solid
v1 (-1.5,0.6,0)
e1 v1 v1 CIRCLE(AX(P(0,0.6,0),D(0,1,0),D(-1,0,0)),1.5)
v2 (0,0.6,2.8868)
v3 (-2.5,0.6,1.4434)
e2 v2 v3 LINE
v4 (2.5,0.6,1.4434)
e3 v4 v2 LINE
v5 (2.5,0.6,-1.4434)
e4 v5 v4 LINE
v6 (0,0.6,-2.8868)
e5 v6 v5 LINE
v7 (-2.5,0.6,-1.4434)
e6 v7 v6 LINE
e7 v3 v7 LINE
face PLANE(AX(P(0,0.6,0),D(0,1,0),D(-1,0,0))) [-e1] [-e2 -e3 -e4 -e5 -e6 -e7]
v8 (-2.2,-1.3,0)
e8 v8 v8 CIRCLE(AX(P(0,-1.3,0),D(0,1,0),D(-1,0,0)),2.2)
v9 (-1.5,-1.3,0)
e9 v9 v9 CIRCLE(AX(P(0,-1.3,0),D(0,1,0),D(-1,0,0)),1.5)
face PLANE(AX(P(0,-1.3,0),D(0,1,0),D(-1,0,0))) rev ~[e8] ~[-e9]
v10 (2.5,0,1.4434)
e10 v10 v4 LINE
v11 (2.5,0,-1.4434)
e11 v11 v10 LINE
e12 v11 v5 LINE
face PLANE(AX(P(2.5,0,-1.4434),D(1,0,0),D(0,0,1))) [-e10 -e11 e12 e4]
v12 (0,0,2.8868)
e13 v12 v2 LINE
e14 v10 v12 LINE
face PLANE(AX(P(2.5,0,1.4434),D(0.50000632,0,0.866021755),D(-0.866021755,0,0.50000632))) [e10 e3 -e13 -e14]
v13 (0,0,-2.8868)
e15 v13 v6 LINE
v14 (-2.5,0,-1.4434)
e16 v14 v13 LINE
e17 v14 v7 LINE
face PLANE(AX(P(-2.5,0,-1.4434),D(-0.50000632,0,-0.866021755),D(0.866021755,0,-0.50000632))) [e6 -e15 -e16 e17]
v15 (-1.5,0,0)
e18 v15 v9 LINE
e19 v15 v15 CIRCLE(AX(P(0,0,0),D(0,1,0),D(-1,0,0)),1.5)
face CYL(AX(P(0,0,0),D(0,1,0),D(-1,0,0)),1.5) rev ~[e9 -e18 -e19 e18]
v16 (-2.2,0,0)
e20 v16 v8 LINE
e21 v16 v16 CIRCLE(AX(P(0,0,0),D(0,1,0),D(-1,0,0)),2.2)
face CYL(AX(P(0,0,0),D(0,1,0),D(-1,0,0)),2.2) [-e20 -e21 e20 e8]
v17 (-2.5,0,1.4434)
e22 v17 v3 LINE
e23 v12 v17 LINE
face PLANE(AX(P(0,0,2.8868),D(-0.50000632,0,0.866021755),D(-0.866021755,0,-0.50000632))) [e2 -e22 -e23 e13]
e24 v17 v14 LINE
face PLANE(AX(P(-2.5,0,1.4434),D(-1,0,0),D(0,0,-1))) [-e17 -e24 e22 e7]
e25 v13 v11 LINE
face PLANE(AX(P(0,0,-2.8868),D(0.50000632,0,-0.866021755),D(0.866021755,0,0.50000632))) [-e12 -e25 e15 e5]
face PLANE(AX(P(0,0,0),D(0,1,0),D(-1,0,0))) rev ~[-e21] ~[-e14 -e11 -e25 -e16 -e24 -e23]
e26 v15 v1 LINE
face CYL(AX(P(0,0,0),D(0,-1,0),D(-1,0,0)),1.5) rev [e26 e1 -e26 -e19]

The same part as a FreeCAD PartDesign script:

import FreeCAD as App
import Part
import Sketcher
Q = App.Units.Quantity


def add_polygon(sketch, points):
    """Adds a closed chain of lines whose ends are joined by coincident constraints."""
    first, n = sketch.GeometryCount, len(points)
    for a, b in zip(points, points[1:] + points[:1]):
        sketch.addGeometry(Part.LineSegment(App.Vector(*a, 0), App.Vector(*b, 0)), False)
    for i in range(n):
        sketch.addConstraint(Sketcher.Constraint("Coincident", first + i, 2, first + (i + 1) % n, 1))

doc = App.newDocument("Part")
body = doc.addObject("PartDesign::Body", "Body")

# Sketch on XZ plane
sketch1 = doc.addObject("Sketcher::SketchObject", "Sketch")
body.addObject(sketch1)
sketch1.AttachmentSupport = (doc.XZ_Plane, [""])
sketch1.MapMode = "FlatFace"
add_polygon(sketch1, [(-2.5, -1.4), (-2.5, 1.4), (0, 2.9), (2.5, 1.4), (2.5, -1.4), (0, -2.9)])  # lines 0-5
sketch1.addGeometry(Part.Circle(App.Vector(0, 0, 0), App.Vector(0, 0, 1), 1.5), False)  # 6
sketch1.addConstraint(Sketcher.Constraint("Vertical", 0))
sketch1.addConstraint(Sketcher.Constraint("Vertical", 3))
sketch1.addConstraint(Sketcher.Constraint("Coincident", 6, 3, -1, 1))
sketch1.addConstraint(Sketcher.Constraint("Symmetric", 0, 2, 3, 2, -1, 1))
sketch1.addConstraint(Sketcher.Constraint("Symmetric", 1, 2, 4, 2, -1, 1))
sketch1.addConstraint(Sketcher.Constraint("PointOnObject", 1, 2, -2))
sketch1.addConstraint(Sketcher.Constraint("Parallel", 2, 5))
sketch1.addConstraint(Sketcher.Constraint("Horizontal", 0, 2, 2, 2))
sketch1.addConstraint(Sketcher.Constraint("Diameter", 6, Q("3 mm")))
sketch1.addConstraint(Sketcher.Constraint("DistanceX", 0, 2, 2, 2, Q("5 mm")))
sketch1.addConstraint(Sketcher.Constraint("Angle", 1, Q("30.0004 deg")))
sketch1.addConstraint(Sketcher.Constraint("DistanceY", 0, 1, 0, 2, Q("2.8868 mm")))
pad1 = doc.addObject("PartDesign::Pad", "Pad")
body.addObject(pad1)
pad1.Profile = sketch1
pad1.Length = 0.6
pad1.Reversed = True

# Sketch on XZ plane
sketch2 = doc.addObject("Sketcher::SketchObject", "Sketch001")
body.addObject(sketch2)
sketch2.AttachmentSupport = (doc.XZ_Plane, [""])
sketch2.MapMode = "FlatFace"
sketch2.addGeometry(Part.Circle(App.Vector(0, 0, 0), App.Vector(0, 0, 1), 2.2), False)
sketch2.addGeometry(Part.Circle(App.Vector(0, 0, 0), App.Vector(0, 0, 1), 1.5), False)
sketch2.addConstraint(Sketcher.Constraint("Coincident", 0, 3, -1, 1))
sketch2.addConstraint(Sketcher.Constraint("Coincident", 1, 3, -1, 1))
sketch2.addConstraint(Sketcher.Constraint("Diameter", 1, Q("3 mm")))
sketch2.addConstraint(Sketcher.Constraint("Diameter", 0, Q("4.4 mm")))
pad2 = doc.addObject("PartDesign::Pad", "Pad001")
body.addObject(pad2)
pad2.Profile = sketch2
pad2.Length = 1.3

doc.recompute()
